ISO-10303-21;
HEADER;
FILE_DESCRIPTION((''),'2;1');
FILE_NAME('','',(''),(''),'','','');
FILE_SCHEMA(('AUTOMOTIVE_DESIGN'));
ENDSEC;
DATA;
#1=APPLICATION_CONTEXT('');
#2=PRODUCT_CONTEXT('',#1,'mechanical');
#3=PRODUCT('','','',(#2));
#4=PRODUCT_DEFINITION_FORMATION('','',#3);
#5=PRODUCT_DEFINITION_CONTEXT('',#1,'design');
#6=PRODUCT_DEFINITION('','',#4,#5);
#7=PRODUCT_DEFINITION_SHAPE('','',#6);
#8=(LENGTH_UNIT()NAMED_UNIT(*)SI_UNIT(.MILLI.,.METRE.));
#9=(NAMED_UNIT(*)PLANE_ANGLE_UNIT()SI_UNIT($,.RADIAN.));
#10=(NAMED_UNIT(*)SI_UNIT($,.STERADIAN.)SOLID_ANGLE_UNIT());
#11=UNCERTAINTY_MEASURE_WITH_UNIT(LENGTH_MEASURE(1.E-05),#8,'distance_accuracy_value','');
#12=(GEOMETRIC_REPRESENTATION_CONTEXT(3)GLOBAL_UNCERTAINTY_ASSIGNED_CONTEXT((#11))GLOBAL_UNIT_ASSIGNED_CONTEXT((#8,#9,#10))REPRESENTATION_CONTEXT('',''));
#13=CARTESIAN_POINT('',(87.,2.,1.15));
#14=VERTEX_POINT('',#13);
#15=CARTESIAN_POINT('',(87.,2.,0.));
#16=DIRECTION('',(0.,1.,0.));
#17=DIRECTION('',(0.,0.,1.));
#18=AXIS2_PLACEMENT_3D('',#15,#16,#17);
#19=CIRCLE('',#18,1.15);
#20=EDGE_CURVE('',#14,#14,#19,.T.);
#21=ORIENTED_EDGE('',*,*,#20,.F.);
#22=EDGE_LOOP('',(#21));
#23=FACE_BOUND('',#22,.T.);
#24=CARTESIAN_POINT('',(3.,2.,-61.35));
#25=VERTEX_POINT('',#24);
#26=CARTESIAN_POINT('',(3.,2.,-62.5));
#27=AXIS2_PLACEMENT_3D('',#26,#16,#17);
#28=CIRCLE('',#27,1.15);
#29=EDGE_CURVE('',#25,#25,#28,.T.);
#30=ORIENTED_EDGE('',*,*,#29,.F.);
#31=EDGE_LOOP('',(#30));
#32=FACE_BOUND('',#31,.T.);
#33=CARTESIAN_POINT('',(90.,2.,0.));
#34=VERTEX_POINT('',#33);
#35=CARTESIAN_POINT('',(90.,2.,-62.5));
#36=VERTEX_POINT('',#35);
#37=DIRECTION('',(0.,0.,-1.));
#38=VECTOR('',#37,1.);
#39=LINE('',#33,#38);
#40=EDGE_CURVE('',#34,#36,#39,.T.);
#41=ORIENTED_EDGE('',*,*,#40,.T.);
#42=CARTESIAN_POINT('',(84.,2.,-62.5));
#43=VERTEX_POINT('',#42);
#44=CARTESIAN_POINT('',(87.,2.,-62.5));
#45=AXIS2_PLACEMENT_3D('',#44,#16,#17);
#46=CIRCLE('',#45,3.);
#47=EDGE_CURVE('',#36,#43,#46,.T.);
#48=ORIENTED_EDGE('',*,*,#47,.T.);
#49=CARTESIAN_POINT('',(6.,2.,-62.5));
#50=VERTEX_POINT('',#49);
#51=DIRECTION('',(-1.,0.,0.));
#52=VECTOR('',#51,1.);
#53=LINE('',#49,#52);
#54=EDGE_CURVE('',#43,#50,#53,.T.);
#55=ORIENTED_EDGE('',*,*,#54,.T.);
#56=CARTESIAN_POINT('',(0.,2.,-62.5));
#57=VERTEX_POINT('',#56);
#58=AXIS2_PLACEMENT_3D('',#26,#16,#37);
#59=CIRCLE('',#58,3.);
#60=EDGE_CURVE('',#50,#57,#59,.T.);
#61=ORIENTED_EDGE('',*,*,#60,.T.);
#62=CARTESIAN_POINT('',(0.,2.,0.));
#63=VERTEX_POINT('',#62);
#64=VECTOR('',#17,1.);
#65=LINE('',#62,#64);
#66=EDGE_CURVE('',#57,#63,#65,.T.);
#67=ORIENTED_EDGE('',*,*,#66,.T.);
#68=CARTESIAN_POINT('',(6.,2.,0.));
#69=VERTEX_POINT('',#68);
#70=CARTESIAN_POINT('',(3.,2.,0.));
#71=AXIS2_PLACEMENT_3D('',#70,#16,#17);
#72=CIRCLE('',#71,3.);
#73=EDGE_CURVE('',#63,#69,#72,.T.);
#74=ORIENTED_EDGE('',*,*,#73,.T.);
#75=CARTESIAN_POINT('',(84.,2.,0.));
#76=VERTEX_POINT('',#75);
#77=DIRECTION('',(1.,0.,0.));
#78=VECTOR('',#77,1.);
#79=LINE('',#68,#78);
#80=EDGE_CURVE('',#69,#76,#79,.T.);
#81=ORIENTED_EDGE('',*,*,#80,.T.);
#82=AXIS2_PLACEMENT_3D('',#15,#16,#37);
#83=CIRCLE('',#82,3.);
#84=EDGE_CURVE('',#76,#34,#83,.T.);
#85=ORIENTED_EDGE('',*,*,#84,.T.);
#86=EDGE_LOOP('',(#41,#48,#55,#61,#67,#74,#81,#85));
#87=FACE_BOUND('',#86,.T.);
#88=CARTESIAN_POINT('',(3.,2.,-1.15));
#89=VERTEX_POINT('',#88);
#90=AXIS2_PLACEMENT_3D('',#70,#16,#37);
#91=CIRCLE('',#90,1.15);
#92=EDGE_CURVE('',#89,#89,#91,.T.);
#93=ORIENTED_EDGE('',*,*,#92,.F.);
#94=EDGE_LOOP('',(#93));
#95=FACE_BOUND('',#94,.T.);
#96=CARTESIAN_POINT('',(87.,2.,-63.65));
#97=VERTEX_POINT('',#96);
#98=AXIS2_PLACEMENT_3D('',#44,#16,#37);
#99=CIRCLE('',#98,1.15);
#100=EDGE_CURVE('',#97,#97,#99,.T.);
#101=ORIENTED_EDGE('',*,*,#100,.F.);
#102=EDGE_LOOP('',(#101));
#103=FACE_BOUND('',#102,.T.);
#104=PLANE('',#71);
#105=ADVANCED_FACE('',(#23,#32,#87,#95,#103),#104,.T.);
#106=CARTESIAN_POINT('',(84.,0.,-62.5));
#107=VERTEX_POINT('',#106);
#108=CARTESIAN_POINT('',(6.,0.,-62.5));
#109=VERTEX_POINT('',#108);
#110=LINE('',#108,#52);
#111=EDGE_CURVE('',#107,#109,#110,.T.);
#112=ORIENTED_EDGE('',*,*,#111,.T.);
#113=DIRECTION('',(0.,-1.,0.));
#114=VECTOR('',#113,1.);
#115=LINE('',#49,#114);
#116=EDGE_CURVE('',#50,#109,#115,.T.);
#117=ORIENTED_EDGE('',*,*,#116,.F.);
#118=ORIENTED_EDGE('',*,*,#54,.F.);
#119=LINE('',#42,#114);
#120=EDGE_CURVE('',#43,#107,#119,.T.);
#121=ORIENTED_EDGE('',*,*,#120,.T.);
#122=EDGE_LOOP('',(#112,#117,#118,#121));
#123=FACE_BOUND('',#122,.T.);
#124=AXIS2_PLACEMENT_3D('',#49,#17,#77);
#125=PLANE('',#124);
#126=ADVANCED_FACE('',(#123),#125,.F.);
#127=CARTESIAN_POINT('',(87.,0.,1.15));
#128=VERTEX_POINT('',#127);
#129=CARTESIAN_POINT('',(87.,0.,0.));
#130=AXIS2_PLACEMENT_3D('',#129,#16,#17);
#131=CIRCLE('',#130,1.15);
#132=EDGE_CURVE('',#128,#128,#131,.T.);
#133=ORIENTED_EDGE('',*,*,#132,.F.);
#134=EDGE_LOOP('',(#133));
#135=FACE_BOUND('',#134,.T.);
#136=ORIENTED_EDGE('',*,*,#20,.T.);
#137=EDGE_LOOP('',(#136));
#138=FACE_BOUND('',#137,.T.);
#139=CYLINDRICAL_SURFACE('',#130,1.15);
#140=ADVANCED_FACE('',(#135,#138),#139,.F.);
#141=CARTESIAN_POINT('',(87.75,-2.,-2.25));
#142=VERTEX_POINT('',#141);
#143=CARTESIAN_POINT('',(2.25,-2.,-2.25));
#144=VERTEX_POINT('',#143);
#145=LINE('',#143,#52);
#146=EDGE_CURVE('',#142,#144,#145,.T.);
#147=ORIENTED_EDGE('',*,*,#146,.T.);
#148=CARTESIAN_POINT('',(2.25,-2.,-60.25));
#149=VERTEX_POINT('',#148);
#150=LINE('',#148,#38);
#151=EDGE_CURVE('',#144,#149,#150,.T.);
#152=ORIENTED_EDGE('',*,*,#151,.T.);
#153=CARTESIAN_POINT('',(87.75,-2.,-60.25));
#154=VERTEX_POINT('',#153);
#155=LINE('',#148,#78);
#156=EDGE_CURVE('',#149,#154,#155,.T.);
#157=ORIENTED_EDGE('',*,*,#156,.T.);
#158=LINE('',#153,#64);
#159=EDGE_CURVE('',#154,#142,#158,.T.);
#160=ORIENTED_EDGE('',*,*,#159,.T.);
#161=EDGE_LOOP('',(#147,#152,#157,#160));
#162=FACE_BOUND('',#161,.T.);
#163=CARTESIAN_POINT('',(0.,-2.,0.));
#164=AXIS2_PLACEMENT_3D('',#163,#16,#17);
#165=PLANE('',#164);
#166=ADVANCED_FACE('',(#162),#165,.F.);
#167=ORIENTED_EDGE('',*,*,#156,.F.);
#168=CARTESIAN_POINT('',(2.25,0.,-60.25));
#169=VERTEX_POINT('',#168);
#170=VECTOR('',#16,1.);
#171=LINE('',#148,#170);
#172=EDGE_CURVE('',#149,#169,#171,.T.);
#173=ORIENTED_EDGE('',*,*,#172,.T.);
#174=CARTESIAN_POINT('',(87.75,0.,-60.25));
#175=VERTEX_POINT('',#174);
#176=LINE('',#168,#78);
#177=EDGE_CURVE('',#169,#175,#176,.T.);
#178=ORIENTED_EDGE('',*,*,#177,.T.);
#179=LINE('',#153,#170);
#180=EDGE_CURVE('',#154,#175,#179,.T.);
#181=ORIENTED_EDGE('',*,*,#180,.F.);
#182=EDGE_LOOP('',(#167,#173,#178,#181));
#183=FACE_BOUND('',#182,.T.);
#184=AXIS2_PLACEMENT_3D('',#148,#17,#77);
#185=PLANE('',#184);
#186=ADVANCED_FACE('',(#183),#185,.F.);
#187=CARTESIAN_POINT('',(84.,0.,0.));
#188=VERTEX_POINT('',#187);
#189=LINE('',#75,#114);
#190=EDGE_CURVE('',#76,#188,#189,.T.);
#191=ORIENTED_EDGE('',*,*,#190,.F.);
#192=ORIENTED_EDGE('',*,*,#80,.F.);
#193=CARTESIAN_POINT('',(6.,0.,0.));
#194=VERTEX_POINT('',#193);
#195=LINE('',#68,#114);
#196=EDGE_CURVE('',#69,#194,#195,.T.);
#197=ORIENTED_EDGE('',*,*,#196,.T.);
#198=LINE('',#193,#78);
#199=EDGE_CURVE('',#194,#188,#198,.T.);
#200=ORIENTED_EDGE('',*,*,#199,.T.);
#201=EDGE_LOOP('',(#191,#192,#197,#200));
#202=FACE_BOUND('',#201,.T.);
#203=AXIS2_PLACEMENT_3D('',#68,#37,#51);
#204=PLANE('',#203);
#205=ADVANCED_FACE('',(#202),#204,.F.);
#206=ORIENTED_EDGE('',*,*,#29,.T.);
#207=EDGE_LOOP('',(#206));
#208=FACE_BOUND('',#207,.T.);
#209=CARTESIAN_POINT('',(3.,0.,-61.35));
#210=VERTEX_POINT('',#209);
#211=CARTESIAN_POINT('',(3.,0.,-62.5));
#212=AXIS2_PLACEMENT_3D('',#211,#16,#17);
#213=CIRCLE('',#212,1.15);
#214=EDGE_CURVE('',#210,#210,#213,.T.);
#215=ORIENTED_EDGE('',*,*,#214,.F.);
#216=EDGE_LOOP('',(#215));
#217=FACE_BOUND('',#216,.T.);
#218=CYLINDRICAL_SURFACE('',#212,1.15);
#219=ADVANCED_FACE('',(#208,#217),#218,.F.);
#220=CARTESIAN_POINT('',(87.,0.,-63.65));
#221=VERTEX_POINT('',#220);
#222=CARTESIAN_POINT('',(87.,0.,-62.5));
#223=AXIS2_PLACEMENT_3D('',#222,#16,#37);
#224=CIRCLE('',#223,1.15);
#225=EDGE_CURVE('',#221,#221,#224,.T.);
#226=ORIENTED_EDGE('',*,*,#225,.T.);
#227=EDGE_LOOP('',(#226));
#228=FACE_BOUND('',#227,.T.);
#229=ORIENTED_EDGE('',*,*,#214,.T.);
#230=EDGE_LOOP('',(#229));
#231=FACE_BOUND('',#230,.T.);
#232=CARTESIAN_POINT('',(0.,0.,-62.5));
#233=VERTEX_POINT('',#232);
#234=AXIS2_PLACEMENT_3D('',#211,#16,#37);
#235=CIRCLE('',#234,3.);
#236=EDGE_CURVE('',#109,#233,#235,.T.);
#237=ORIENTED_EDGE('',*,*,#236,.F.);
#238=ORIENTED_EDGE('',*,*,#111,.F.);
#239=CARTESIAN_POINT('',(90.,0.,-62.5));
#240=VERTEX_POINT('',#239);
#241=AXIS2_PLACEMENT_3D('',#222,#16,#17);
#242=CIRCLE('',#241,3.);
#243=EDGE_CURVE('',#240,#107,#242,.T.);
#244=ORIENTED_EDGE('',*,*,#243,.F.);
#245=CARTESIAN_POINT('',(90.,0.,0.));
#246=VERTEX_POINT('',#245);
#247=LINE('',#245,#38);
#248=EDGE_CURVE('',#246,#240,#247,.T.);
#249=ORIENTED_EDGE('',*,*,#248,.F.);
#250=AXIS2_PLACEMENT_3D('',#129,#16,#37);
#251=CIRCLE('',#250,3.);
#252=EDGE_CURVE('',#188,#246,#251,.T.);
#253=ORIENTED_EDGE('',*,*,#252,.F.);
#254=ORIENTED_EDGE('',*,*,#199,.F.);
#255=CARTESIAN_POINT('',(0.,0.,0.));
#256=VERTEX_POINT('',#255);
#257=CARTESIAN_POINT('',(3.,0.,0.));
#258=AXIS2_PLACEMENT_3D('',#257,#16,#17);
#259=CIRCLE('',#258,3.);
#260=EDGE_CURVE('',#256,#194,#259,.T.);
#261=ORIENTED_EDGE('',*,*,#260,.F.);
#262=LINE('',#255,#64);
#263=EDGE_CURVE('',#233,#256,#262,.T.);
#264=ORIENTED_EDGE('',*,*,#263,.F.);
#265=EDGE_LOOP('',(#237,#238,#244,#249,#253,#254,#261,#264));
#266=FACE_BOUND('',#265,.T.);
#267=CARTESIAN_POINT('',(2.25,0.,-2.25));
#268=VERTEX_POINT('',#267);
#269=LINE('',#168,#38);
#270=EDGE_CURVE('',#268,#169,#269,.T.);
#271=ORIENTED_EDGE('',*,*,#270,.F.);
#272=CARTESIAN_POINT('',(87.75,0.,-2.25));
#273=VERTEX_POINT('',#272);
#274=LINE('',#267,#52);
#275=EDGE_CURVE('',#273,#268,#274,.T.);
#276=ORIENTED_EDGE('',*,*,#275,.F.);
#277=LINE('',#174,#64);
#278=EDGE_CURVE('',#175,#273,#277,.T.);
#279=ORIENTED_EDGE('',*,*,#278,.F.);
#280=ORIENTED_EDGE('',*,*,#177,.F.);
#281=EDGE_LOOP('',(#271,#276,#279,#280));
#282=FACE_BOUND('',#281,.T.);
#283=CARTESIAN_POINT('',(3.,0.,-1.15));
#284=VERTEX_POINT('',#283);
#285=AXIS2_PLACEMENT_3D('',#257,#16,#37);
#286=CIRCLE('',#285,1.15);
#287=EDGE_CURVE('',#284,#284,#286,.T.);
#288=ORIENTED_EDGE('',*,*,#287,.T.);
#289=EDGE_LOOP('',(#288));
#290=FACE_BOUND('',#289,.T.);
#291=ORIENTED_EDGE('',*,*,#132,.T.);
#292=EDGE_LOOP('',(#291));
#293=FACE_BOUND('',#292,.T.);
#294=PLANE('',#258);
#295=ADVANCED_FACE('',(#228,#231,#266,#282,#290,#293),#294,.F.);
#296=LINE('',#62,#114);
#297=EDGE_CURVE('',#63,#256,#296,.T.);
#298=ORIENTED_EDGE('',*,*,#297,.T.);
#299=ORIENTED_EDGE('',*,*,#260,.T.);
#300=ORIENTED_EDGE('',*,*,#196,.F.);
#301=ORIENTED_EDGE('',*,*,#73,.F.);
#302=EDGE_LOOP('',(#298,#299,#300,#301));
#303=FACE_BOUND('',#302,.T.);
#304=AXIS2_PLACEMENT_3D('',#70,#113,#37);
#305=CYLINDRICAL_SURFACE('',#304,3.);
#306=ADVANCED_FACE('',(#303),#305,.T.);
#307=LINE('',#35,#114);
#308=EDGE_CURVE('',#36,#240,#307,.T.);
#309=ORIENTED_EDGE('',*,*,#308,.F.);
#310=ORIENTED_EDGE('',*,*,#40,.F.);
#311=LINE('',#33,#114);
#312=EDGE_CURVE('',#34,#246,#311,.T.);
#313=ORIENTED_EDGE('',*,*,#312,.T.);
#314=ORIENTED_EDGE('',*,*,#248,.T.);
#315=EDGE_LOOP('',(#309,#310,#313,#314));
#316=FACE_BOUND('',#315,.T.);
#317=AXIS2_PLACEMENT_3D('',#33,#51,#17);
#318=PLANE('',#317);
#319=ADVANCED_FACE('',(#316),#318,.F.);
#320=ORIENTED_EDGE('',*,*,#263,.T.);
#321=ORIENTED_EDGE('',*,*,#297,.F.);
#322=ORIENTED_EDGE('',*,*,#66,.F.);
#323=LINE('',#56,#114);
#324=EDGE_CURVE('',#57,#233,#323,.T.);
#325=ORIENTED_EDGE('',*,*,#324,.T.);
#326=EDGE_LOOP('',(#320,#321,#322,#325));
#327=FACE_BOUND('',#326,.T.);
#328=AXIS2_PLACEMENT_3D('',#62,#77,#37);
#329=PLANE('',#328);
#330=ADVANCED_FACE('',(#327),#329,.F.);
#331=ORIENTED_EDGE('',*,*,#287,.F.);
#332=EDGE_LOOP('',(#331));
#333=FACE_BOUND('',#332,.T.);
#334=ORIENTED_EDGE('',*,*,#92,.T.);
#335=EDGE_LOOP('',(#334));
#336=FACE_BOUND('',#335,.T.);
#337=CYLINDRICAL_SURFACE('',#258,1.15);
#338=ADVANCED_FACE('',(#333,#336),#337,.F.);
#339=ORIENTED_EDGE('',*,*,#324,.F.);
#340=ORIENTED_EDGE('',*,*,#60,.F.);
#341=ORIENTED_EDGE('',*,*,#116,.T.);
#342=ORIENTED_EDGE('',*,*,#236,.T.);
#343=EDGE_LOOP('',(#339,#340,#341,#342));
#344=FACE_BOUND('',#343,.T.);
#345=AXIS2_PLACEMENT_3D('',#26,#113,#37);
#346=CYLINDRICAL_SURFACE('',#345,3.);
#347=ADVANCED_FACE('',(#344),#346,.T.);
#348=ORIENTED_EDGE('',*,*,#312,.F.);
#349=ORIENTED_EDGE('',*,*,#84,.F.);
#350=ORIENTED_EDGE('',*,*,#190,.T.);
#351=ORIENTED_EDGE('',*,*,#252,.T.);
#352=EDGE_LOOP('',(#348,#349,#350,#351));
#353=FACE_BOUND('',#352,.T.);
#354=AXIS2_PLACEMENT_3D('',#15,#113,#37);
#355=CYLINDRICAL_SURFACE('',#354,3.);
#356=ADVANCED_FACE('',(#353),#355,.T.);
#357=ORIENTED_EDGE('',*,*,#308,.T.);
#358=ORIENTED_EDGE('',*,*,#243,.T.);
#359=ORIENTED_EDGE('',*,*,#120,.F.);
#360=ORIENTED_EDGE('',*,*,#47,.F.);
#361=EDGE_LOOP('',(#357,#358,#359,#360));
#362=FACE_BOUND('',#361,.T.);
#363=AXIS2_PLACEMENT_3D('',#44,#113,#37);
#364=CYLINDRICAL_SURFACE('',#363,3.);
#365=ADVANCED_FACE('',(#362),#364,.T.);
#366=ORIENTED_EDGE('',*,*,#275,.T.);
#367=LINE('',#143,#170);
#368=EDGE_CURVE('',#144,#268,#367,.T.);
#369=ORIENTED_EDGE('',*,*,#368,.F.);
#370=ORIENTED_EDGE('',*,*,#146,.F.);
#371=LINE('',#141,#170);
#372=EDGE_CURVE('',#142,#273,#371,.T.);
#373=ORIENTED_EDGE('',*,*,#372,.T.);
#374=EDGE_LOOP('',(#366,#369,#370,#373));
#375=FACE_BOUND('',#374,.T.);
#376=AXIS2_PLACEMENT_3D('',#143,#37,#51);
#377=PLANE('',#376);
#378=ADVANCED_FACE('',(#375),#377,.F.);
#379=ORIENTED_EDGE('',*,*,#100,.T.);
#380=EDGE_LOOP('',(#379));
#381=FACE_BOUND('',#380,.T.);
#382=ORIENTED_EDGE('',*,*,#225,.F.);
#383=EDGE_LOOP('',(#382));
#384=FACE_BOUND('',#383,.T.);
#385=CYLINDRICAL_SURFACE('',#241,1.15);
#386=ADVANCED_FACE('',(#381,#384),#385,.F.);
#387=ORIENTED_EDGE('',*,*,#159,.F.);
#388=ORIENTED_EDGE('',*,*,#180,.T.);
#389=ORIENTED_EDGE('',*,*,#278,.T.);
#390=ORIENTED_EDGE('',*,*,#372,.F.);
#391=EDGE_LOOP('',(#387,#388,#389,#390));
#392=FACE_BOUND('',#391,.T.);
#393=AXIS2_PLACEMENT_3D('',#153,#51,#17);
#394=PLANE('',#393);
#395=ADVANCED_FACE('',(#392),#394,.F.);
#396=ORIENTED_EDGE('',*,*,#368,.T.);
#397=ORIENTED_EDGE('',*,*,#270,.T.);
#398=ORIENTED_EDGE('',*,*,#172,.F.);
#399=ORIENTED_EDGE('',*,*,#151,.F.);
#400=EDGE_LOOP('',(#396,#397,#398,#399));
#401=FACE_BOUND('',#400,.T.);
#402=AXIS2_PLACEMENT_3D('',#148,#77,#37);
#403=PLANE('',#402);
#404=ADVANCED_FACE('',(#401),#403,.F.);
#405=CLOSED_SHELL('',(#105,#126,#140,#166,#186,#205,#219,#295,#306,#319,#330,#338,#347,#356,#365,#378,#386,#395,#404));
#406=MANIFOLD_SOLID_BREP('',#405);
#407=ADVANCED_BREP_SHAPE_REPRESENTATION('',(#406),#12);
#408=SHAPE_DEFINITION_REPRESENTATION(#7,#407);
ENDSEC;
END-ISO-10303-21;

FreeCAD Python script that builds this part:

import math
import FreeCAD as App
import Part
import Sketcher
Q = App.Units.Quantity


def add_polygon(sketch, points):
    """Adds a closed chain of lines whose ends are joined by coincident constraints."""
    first, n = sketch.GeometryCount, len(points)
    for a, b in zip(points, points[1:] + points[:1]):
        sketch.addGeometry(Part.LineSegment(App.Vector(*a, 0), App.Vector(*b, 0)), False)
    for i in range(n):
        sketch.addConstraint(Sketcher.Constraint("Coincident", first + i, 2, first + (i + 1) % n, 1))

doc = App.newDocument("Part")
body = doc.addObject("PartDesign::Body", "Body")

sketch1 = body.newObject("Sketcher::SketchObject", "Sketch")
sketch1.AttachmentSupport = (doc.getObject("XZ_Plane"), [""])
sketch1.MapMode = "FlatFace"
sketch1.addGeometry(Part.LineSegment(App.Vector(6, 0, 0), App.Vector(84, 0, 0)), False)
sketch1.addGeometry(Part.ArcOfCircle(Part.Circle(App.Vector(87, 0, 0), App.Vector(0, 0, 1), 3), math.radians(0), math.radians(180)), False)
sketch1.addGeometry(Part.LineSegment(App.Vector(90, 0, 0), App.Vector(90, -62.5, 0)), False)
sketch1.addGeometry(Part.ArcOfCircle(Part.Circle(App.Vector(87, -62.5, 0), App.Vector(0, 0, 1), 3), math.radians(180), math.radians(360)), False)
sketch1.addGeometry(Part.LineSegment(App.Vector(84, -62.5, 0), App.Vector(6, -62.5, 0)), False)
sketch1.addGeometry(Part.ArcOfCircle(Part.Circle(App.Vector(3, -62.5, 0), App.Vector(0, 0, 1), 3), math.radians(180), math.radians(360)), False)
sketch1.addGeometry(Part.LineSegment(App.Vector(0, -62.5, 0), App.Vector(0, 0, 0)), False)
sketch1.addGeometry(Part.ArcOfCircle(Part.Circle(App.Vector(3, 0, 0), App.Vector(0, 0, 1), 3), math.radians(0), math.radians(180)), False)
sketch1.addConstraint(Sketcher.Constraint("Coincident", 0, 2, 1, 2))
sketch1.addConstraint(Sketcher.Constraint("Tangent", 1, 1, 2, 1))
sketch1.addConstraint(Sketcher.Constraint("Tangent", 2, 2, 3, 2))
sketch1.addConstraint(Sketcher.Constraint("Coincident", 3, 1, 4, 1))
sketch1.addConstraint(Sketcher.Constraint("Coincident", 4, 2, 5, 2))
sketch1.addConstraint(Sketcher.Constraint("Tangent", 5, 1, 6, 1))
sketch1.addConstraint(Sketcher.Constraint("Tangent", 6, 2, 7, 2))
sketch1.addConstraint(Sketcher.Constraint("Coincident", 7, 1, 0, 1))
sketch1.addConstraint(Sketcher.Constraint("Horizontal", 0))
sketch1.addConstraint(Sketcher.Constraint("Vertical", 2))
sketch1.addConstraint(Sketcher.Constraint("Horizontal", 4))
sketch1.addConstraint(Sketcher.Constraint("Vertical", 6))
sketch1.addConstraint(Sketcher.Constraint("Coincident", 6, 2, -1, 1))
sketch1.addConstraint(Sketcher.Constraint("Equal", 1, 3))
sketch1.addConstraint(Sketcher.Constraint("Equal", 3, 5))
sketch1.addConstraint(Sketcher.Constraint("Equal", 5, 7))
sketch1.addConstraint(Sketcher.Constraint("PointOnObject", 1, 3, -1))
sketch1.addConstraint(Sketcher.Constraint("PointOnObject", 0, 2, -1))
sketch1.addConstraint(Sketcher.Constraint("Horizontal", 3, 3, 5, 3))
sketch1.addConstraint(Sketcher.Constraint("Horizontal", 2, 2, 3, 1))
sketch1.addConstraint(Sketcher.Constraint("Radius", 1, Q("3 mm")))
sketch1.addConstraint(Sketcher.Constraint("DistanceX", 0, 1, 0, 2, Q("78 mm")))
sketch1.addConstraint(Sketcher.Constraint("DistanceY", 2, 2, 2, 1, Q("62.5 mm")))
pad1 = body.newObject("PartDesign::Pad", "Pad")
pad1.Profile = sketch1
pad1.Length = 2
pad1.Reversed = True

sketch2 = body.newObject("Sketcher::SketchObject", "Sketch001")
sketch2.AttachmentSupport = (doc.getObject("XZ_Plane"), [""])
sketch2.MapMode = "FlatFace"
sketch2.AttachmentOffset = App.Placement(App.Vector(0, 0, -2), App.Rotation())
sketch2.addGeometry(Part.Circle(App.Vector(3, -62.5, 0), App.Vector(0, 0, 1), 1.15), False)
sketch2.addGeometry(Part.Circle(App.Vector(87, -62.5, 0), App.Vector(0, 0, 1), 1.15), False)
sketch2.addGeometry(Part.Circle(App.Vector(87, 0, 0), App.Vector(0, 0, 1), 1.15), False)
sketch2.addGeometry(Part.Circle(App.Vector(3, 0, 0), App.Vector(0, 0, 1), 1.15), False)
sketch2.addConstraint(Sketcher.Constraint("Equal", 0, 1))
sketch2.addConstraint(Sketcher.Constraint("Equal", 1, 2))
sketch2.addConstraint(Sketcher.Constraint("Equal", 2, 3))
sketch2.addConstraint(Sketcher.Constraint("PointOnObject", 2, 3, -1))
sketch2.addConstraint(Sketcher.Constraint("PointOnObject", 3, 3, -1))
sketch2.addConstraint(Sketcher.Constraint("Horizontal", 0, 3, 1, 3))
sketch2.addConstraint(Sketcher.Constraint("Vertical", 1, 3, 2, 3))
sketch2.addConstraint(Sketcher.Constraint("Vertical", 0, 3, 3, 3))
sketch2.addConstraint(Sketcher.Constraint("Diameter", 0, Q("2.3 mm")))
sketch2.addConstraint(Sketcher.Constraint("DistanceX", -1, 1, 0, 3, Q("3 mm")))
sketch2.addConstraint(Sketcher.Constraint("DistanceX", -1, 1, 1, 3, Q("87 mm")))
sketch2.addConstraint(Sketcher.Constraint("DistanceY", 0, 3, -1, 1, Q("62.5 mm")))
pocket1 = body.newObject("PartDesign::Pocket", "Pocket")
pocket1.Profile = sketch2
pocket1.Type = "ThroughAll"
pocket1.Reversed = True

sketch3 = body.newObject("Sketcher::SketchObject", "Sketch002")
sketch3.AttachmentSupport = (doc.getObject("XZ_Plane"), [""])
sketch3.MapMode = "FlatFace"
add_polygon(sketch3, [(2.25, -2.25), (2.25, -60.25), (87.75, -60.25), (87.75, -2.25)])
sketch3.addConstraint(Sketcher.Constraint("Vertical", 0))
sketch3.addConstraint(Sketcher.Constraint("Horizontal", 1))
sketch3.addConstraint(Sketcher.Constraint("Vertical", 2))
sketch3.addConstraint(Sketcher.Constraint("Horizontal", 3))
sketch3.addConstraint(Sketcher.Constraint("DistanceY", 0, 2, 0, 1, Q("58 mm")))
sketch3.addConstraint(Sketcher.Constraint("DistanceX", 1, 1, 1, 2, Q("85.5 mm")))
sketch3.addConstraint(Sketcher.Constraint("DistanceX", -1, 1, 0, 2, Q("2.25 mm")))
sketch3.addConstraint(Sketcher.Constraint("DistanceY", 0, 2, -1, 1, Q("60.25 mm")))
pad2 = body.newObject("PartDesign::Pad", "Pad001")
pad2.Profile = sketch3
pad2.Length = 2

doc.recompute()
